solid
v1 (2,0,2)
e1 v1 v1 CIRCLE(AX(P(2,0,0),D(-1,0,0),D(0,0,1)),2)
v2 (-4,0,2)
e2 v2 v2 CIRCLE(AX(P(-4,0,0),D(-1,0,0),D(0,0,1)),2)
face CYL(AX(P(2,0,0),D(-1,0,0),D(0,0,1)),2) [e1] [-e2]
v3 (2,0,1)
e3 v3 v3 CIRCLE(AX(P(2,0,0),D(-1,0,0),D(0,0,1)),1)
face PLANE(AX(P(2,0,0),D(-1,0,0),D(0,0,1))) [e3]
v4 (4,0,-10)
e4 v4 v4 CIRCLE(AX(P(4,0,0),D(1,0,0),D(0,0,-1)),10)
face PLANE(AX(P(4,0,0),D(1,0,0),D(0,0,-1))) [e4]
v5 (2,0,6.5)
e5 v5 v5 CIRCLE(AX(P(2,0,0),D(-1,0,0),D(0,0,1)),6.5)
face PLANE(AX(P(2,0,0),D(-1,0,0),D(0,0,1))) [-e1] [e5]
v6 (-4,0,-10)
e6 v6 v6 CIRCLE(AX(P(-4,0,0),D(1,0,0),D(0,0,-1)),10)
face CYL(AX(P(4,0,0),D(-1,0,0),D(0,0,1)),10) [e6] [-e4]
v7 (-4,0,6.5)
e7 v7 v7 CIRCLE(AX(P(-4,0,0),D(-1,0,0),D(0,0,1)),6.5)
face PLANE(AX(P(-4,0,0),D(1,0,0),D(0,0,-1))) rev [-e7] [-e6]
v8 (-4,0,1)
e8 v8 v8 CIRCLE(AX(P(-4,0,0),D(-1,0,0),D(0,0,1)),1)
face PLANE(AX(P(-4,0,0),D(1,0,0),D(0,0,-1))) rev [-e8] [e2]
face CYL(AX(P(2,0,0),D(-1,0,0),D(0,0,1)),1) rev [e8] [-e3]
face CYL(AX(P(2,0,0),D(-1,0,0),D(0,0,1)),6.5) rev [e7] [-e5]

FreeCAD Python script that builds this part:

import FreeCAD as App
import Part
import Sketcher
Q = App.Units.Quantity

doc = App.newDocument("Part")
params = doc.addObject("Spreadsheet::Sheet", "Params")
for row, (alias, value) in enumerate([
    ("sketch1_diameter", "20 mm"),
    ("pad1_length", "8 mm"),
    ("sketch2_diameter", "13 mm"),
    ("sketch2_diameter2", "4 mm"),
    ("sketch2_diameter3", "2 mm"),
    ("pocket1_length", "6 mm"),
], start=1):
    params.set(f"A{row}", alias)
    params.set(f"B{row}", "=" + value)
    params.setAlias(f"B{row}", alias)

body = doc.addObject("PartDesign::Body", "Body")

# Sketch on YZ plane
sketch1 = body.newObject("Sketcher::SketchObject", "Sketch")
sketch1.AttachmentSupport = (doc.getObject("YZ_Plane"), [""])
sketch1.MapMode = "FlatFace"
sketch1.addGeometry(Part.Circle(App.Vector(0, 0, 0), App.Vector(0, 0, 1), 10), False)
sketch1.addConstraint(Sketcher.Constraint("Coincident", 0, 3, -1, 1))
sketch1.addConstraint(Sketcher.Constraint("Diameter", 0, Q("20 mm")))
sketch1.setExpression("Constraints[1]", "Params.sketch1_diameter")
pad1 = body.newObject("PartDesign::Pad", "Pad")
pad1.Profile = sketch1
pad1.setExpression("Length", "Params.pad1_length")
pad1.Midplane = True

# Sketch on YZ plane
sketch2 = body.newObject("Sketcher::SketchObject", "Sketch001")
sketch2.AttachmentSupport = (doc.getObject("YZ_Plane"), [""])
sketch2.MapMode = "FlatFace"
sketch2.AttachmentOffset = App.Placement(App.Vector(0, 0, -4), App.Rotation())
sketch2.addGeometry(Part.Circle(App.Vector(0, 0, 0), App.Vector(0, 0, 1), 6.5), False)
sketch2.addGeometry(Part.Circle(App.Vector(0, 0, 0), App.Vector(0, 0, 1), 2), False)
sketch2.addGeometry(Part.Circle(App.Vector(0, 0, 0), App.Vector(0, 0, 1), 1), False)
sketch2.addConstraint(Sketcher.Constraint("Coincident", 0, 3, -1, 1))
sketch2.addConstraint(Sketcher.Constraint("Coincident", 1, 3, -1, 1))
sketch2.addConstraint(Sketcher.Constraint("Coincident", 2, 3, -1, 1))
sketch2.addConstraint(Sketcher.Constraint("Diameter", 0, Q("13 mm")))
sketch2.addConstraint(Sketcher.Constraint("Diameter", 1, Q("4 mm")))
sketch2.addConstraint(Sketcher.Constraint("Diameter", 2, Q("2 mm")))
sketch2.setExpression("Constraints[3]", "Params.sketch2_diameter")
sketch2.setExpression("Constraints[4]", "Params.sketch2_diameter2")
sketch2.setExpression("Constraints[5]", "Params.sketch2_diameter3")
pocket1 = body.newObject("PartDesign::Pocket", "Pocket")
pocket1.Profile = sketch2
pocket1.setExpression("Length", "Params.pocket1_length")
pocket1.Reversed = True

doc.recompute()
